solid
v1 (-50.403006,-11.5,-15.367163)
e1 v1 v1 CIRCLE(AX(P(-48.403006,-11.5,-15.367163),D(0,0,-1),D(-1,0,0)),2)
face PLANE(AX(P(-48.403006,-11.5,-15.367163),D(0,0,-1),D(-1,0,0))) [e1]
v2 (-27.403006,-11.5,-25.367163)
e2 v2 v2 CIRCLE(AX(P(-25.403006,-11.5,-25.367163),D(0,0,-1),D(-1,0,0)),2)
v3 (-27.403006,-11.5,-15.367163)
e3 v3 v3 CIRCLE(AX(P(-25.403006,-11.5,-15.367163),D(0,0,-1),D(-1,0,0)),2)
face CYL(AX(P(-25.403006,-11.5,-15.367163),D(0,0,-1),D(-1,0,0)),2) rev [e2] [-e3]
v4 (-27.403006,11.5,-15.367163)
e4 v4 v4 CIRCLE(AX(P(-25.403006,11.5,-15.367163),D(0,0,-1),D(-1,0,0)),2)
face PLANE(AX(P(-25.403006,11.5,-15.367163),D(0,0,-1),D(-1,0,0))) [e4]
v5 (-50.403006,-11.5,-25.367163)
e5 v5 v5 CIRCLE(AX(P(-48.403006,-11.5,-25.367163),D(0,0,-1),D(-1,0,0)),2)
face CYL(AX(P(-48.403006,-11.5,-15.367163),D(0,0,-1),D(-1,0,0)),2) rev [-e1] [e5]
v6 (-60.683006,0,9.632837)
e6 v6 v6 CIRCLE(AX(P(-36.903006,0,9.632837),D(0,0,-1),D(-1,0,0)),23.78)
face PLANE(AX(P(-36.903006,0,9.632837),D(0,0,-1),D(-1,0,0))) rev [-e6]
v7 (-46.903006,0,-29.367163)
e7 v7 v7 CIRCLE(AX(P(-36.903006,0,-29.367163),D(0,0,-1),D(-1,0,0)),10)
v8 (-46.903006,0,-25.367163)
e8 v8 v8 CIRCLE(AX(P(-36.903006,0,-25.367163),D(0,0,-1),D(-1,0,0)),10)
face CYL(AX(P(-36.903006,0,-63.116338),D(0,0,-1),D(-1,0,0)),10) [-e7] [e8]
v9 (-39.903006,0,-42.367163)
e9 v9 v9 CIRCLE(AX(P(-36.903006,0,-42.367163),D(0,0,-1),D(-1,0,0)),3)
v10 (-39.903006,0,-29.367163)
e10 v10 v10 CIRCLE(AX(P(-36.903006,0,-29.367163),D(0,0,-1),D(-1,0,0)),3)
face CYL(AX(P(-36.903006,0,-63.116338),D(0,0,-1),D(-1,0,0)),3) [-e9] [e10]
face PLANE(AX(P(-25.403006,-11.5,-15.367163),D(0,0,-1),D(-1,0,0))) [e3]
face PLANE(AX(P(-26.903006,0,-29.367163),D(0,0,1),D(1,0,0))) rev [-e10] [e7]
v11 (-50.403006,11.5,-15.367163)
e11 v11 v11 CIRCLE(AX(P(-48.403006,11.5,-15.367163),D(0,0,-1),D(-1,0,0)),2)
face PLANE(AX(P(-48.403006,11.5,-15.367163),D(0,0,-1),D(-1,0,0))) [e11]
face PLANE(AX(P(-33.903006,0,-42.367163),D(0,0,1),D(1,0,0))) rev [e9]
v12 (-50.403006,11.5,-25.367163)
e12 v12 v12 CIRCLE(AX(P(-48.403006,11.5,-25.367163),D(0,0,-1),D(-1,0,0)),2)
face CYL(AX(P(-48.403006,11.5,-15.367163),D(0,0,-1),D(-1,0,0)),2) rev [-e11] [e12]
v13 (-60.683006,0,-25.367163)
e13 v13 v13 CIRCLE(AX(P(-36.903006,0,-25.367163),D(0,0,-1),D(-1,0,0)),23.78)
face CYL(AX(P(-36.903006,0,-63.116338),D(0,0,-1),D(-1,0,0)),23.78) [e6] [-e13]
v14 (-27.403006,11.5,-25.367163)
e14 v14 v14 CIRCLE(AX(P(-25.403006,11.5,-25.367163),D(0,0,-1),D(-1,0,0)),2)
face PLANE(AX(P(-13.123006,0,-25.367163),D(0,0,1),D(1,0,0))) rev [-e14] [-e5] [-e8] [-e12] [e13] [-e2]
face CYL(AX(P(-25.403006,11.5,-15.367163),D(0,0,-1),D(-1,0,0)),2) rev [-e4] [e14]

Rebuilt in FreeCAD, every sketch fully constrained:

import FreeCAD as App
import Part
import Sketcher
from FreeCAD import Vector


def add_polygon(sketch, points):
    """Adds a closed chain of lines whose ends are joined by coincident constraints."""
    first, n = sketch.GeometryCount, len(points)
    for a, b in zip(points, points[1:] + points[:1]):
        sketch.addGeometry(Part.LineSegment(App.Vector(*a, 0), App.Vector(*b, 0)), False)
    for i in range(n):
        sketch.addConstraint(Sketcher.Constraint("Coincident", first + i, 2, first + (i + 1) % n, 1))

doc = App.newDocument("Part")
body = doc.addObject("PartDesign::Body", "Body")

sketch1 = doc.addObject("Sketcher::SketchObject", "Sketch")
body.addObject(sketch1)
sketch1.AttachmentSupport = (doc.XZ_Plane, [""])
sketch1.MapMode = "FlatFace"
add_polygon(sketch1, [(-36.9, 9.6), (-13.1, 9.6), (-13.1, -25.4), (-26.9, -25.4), (-26.9, -29.4), (-33.9, -29.4), (-33.9, -42.4), (-36.9, -42.4)])
sketch1.addGeometry(Part.LineSegment(Vector(-36.9, -42.4, 0), Vector(-36.9, 9.6, 0)), True)
sketch1.addConstraint([
    Sketcher.Constraint("Horizontal", 0),
    Sketcher.Constraint("Vertical", 1),
    Sketcher.Constraint("Horizontal", 2),
    Sketcher.Constraint("Vertical", 3),
    Sketcher.Constraint("Horizontal", 4),
    Sketcher.Constraint("Vertical", 5),
    Sketcher.Constraint("Horizontal", 6),
    Sketcher.Constraint("Vertical", 7),
    Sketcher.Constraint("Vertical", 8),
    Sketcher.Constraint("Coincident", 8, 1, 6, 2),
    Sketcher.Constraint("Horizontal", 0, 2, 8, 2),
    Sketcher.Constraint("DistanceX", 4, 2, 4, 1, 7.0),
    Sketcher.Constraint("DistanceX", 6, 2, 6, 1, 3.0),
    Sketcher.Constraint("DistanceY", 1, 2, 1, 1, 35.0),
    Sketcher.Constraint("DistanceY", 3, 2, 3, 1, 4.0),
    Sketcher.Constraint("DistanceY", 5, 2, 5, 1, 13.0),
    Sketcher.Constraint("DistanceX", 0, 1, 0, 2, 23.78),
    Sketcher.Constraint("DistanceX", 0, 2, -1, 1, 13.123006),
    Sketcher.Constraint("DistanceY", -1, 1, 0, 2, 9.632837),
])
revolution = doc.addObject("PartDesign::Revolution", "Revolution")
body.addObject(revolution)
revolution.Profile = sketch1
revolution.ReferenceAxis = (sketch1, ["Axis0"])
revolution.Angle = 360

sketch2 = doc.addObject("Sketcher::SketchObject", "Sketch001")
body.addObject(sketch2)
sketch2.AttachmentSupport = (doc.XY_Plane, [""])
sketch2.MapMode = "FlatFace"
sketch2.AttachmentOffset = App.Placement(Vector(0, 0, -25.367163), App.Rotation())
sketch2.addGeometry([
    Part.Circle(Vector(-25.4, 11.5, 0), Vector(0, 0, 1), 2),
    Part.Circle(Vector(-48.4, 11.5, 0), Vector(0, 0, 1), 2),
    Part.Circle(Vector(-48.4, -11.5, 0), Vector(0, 0, 1), 2),
    Part.Circle(Vector(-25.4, -11.5, 0), Vector(0, 0, 1), 2),
], False)
sketch2.addConstraint([
    Sketcher.Constraint("Equal", 0, 1),
    Sketcher.Constraint("Equal", 1, 2),
    Sketcher.Constraint("Equal", 2, 3),
    Sketcher.Constraint("Symmetric", 1, 3, 2, 3, -1),
    Sketcher.Constraint("Symmetric", 0, 3, 3, 3, -1),
    Sketcher.Constraint("Horizontal", 0, 3, 1, 3),
    Sketcher.Constraint("Diameter", 0, 4.0),
    Sketcher.Constraint("DistanceX", 1, 3, 0, 3, 23.0),
    Sketcher.Constraint("DistanceY", 2, 3, 1, 3, 23.0),
    Sketcher.Constraint("DistanceX", 0, 3, -1, 1, 25.403006),
])
pocket1 = doc.addObject("PartDesign::Pocket", "Pocket")
body.addObject(pocket1)
pocket1.Profile = sketch2
pocket1.Length = 10
pocket1.Reversed = True

doc.recompute()
